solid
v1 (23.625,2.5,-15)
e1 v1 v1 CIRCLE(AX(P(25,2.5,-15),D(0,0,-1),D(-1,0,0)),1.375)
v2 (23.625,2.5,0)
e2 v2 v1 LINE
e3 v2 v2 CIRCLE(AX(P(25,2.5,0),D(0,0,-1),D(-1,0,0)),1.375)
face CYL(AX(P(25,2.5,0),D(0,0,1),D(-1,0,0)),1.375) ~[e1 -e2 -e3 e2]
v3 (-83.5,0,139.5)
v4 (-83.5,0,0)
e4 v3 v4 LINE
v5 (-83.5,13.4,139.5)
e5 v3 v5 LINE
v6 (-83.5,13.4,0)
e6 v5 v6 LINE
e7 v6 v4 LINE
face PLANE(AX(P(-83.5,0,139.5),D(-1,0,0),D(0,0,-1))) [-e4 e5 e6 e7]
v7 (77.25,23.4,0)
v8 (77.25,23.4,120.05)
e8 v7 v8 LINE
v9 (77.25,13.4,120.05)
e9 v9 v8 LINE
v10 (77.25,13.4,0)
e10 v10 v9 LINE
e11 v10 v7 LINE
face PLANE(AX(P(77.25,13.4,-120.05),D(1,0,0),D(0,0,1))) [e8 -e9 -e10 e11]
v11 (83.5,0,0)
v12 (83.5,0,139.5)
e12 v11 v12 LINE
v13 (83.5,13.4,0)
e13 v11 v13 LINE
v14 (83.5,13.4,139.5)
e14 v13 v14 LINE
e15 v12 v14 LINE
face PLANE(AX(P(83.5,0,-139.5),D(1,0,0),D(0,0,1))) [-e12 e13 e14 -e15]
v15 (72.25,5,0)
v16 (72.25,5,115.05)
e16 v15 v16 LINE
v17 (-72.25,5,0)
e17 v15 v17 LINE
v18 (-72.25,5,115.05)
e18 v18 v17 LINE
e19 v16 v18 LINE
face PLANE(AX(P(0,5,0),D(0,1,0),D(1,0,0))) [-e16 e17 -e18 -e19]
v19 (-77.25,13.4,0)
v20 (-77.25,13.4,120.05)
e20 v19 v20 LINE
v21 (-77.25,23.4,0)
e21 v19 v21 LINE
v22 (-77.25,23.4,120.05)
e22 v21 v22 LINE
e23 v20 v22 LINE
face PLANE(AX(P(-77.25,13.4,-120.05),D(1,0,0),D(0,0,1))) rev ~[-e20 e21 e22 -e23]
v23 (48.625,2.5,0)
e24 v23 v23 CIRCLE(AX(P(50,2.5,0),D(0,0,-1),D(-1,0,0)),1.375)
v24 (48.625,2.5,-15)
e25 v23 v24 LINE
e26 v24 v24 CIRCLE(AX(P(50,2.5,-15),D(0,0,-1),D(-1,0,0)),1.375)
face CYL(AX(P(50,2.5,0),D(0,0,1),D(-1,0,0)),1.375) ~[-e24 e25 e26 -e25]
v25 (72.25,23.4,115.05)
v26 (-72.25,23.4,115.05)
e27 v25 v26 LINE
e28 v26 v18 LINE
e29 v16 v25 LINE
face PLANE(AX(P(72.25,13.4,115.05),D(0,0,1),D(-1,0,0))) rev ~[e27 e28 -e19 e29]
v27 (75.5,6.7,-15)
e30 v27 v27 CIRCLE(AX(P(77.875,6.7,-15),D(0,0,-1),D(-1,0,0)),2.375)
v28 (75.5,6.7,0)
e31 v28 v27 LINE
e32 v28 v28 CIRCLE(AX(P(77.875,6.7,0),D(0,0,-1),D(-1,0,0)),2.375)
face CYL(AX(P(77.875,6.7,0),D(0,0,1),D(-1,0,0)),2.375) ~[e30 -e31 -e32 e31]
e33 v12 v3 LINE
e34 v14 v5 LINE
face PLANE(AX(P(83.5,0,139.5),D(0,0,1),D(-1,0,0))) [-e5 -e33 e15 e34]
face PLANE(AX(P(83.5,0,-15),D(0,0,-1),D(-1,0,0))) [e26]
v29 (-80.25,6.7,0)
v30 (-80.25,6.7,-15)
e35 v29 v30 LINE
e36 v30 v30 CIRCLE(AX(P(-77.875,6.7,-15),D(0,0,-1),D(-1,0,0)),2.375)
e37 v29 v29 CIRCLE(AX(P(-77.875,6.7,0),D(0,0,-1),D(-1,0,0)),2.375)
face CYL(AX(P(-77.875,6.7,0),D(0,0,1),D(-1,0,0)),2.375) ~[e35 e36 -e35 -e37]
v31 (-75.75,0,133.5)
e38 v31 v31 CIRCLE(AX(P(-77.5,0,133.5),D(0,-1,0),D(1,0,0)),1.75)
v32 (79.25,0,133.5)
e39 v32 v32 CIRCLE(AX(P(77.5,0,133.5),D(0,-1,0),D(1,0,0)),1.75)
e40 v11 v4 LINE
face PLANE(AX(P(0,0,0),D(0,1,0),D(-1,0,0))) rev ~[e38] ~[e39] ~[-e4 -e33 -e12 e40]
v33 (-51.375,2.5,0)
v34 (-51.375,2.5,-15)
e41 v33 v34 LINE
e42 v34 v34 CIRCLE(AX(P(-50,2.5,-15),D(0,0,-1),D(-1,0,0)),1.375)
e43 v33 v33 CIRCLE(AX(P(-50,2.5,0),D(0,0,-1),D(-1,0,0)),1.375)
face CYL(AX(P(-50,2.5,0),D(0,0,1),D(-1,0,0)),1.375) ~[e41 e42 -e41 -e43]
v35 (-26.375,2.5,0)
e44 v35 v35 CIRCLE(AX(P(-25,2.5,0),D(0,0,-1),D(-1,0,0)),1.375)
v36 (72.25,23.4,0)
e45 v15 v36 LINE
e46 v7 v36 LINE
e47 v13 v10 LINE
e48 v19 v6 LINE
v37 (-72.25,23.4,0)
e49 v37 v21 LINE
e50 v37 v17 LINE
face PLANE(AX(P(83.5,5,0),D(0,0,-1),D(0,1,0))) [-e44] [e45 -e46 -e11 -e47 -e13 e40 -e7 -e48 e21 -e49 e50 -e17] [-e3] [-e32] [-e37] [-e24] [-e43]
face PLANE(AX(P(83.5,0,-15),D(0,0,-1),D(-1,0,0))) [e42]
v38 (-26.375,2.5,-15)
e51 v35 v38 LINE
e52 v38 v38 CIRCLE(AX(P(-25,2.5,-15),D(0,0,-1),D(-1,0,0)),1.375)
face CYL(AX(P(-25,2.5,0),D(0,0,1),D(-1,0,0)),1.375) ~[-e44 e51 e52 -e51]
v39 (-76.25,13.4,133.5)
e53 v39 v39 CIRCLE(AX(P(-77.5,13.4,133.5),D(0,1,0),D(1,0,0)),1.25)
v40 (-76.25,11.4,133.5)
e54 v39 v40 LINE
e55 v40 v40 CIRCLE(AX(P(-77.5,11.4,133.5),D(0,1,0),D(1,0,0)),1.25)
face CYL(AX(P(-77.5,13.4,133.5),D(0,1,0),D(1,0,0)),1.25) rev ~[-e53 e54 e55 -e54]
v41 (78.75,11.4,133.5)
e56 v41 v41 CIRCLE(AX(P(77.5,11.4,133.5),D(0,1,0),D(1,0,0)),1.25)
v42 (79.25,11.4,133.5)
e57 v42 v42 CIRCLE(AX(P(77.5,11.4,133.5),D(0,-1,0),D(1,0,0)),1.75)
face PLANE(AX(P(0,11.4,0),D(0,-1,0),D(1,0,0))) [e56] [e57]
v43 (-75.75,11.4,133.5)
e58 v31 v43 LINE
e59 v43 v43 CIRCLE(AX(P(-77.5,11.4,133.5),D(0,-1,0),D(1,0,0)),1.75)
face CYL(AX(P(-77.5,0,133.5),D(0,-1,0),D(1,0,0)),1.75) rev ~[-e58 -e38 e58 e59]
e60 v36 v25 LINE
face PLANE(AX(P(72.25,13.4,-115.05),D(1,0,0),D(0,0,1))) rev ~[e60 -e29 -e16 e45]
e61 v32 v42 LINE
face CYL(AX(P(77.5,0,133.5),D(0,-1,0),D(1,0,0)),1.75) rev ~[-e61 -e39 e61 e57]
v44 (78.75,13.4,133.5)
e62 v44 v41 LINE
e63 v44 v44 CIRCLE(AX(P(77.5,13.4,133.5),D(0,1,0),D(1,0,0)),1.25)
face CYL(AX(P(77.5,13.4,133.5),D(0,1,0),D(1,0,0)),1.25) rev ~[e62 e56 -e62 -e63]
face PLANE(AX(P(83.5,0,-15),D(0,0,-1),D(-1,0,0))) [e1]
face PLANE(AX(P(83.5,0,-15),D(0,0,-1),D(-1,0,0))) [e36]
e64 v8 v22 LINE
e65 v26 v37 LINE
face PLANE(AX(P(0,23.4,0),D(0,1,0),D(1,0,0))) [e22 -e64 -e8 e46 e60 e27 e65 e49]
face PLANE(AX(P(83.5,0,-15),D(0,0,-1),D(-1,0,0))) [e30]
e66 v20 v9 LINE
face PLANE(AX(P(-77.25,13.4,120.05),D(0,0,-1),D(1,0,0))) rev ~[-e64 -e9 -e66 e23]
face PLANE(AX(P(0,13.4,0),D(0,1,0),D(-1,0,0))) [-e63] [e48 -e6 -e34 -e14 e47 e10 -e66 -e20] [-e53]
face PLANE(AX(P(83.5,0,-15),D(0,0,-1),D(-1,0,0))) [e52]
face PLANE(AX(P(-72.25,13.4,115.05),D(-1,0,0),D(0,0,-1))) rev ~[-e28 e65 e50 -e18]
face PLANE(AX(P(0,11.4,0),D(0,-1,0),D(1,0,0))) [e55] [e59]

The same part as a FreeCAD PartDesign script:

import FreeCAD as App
import Part
import Sketcher
Q = App.Units.Quantity


def add_polygon(sketch, points):
    """Adds a closed chain of lines whose ends are joined by coincident constraints."""
    first, n = sketch.GeometryCount, len(points)
    for a, b in zip(points, points[1:] + points[:1]):
        sketch.addGeometry(Part.LineSegment(App.Vector(*a, 0), App.Vector(*b, 0)), False)
    for i in range(n):
        sketch.addConstraint(Sketcher.Constraint("Coincident", first + i, 2, first + (i + 1) % n, 1))

doc = App.newDocument("Part")
body = doc.addObject("PartDesign::Body", "Body")

# Sketch on XZ plane
sketch1 = body.newObject("Sketcher::SketchObject", "Sketch")
sketch1.AttachmentSupport = (doc.getObject("XZ_Plane"), [""])
sketch1.MapMode = "FlatFace"
add_polygon(sketch1, [(-84, 140), (84, 140), (84, -140), (-84, -140)])  # lines 0-3
sketch1.addConstraint([
    Sketcher.Constraint("Horizontal", 0),
    Sketcher.Constraint("Vertical", 1),
    Sketcher.Constraint("Horizontal", 2),
    Sketcher.Constraint("Vertical", 3),
    Sketcher.Constraint("Symmetric", 0, 2, 2, 2, -1, 1),
    Sketcher.Constraint("DistanceX", 0, 1, 0, 2, Q("167 mm")),
    Sketcher.Constraint("DistanceY", 1, 2, 1, 1, Q("279 mm")),
])
pad1 = body.newObject("PartDesign::Pad", "Pad")
pad1.Profile = sketch1
pad1.Length = 13.4
pad1.Reversed = True

# Sketch on XZ plane
sketch2 = body.newObject("Sketcher::SketchObject", "Sketch001")
sketch2.AttachmentSupport = (doc.getObject("XZ_Plane"), [""])
sketch2.MapMode = "FlatFace"
sketch2.AttachmentOffset = App.Placement(App.Vector(0, 0, -13.4), App.Rotation())
add_polygon(sketch2, [(-72, 115), (72, 115), (72, -115), (-72, -115)])  # lines 0-3
sketch2.addConstraint([
    Sketcher.Constraint("Horizontal", 0),
    Sketcher.Constraint("Vertical", 1),
    Sketcher.Constraint("Horizontal", 2),
    Sketcher.Constraint("Vertical", 3),
    Sketcher.Constraint("Symmetric", 0, 2, 2, 2, -1, 1),
    Sketcher.Constraint("DistanceX", 0, 1, 0, 2, Q("144.5 mm")),
    Sketcher.Constraint("DistanceY", 1, 2, 1, 1, Q("230.1 mm")),
])
pocket1 = body.newObject("PartDesign::Pocket", "Pocket")
pocket1.Profile = sketch2
pocket1.Length = 8.4
pocket1.Reversed = True

# Sketch on XZ plane
sketch3 = body.newObject("Sketcher::SketchObject", "Sketch002")
sketch3.AttachmentSupport = (doc.getObject("XZ_Plane"), [""])
sketch3.MapMode = "FlatFace"
sketch3.AttachmentOffset = App.Placement(App.Vector(0, 0, -13.4), App.Rotation())
sketch3.addGeometry([
    Part.Circle(App.Vector(-77.5, 133.5, 0), App.Vector(0, 0, 1), 1.2),
    Part.Circle(App.Vector(-77.5, -133.5, 0), App.Vector(0, 0, 1), 1.2),
    Part.Circle(App.Vector(77.5, -133.5, 0), App.Vector(0, 0, 1), 1.2),
    Part.Circle(App.Vector(77.5, 133.5, 0), App.Vector(0, 0, 1), 1.2),
], False)
sketch3.addConstraint([
    Sketcher.Constraint("Equal", 0, 1),
    Sketcher.Constraint("Equal", 1, 2),
    Sketcher.Constraint("Equal", 2, 3),
    Sketcher.Constraint("Symmetric", 0, 3, 2, 3, -1, 1),
    Sketcher.Constraint("Symmetric", 1, 3, 3, 3, -1, 1),
    Sketcher.Constraint("Symmetric", 1, 3, 2, 3, -2),
    Sketcher.Constraint("Diameter", 0, Q("2.5 mm")),
    Sketcher.Constraint("DistanceY", 1, 3, 0, 3, Q("267 mm")),
    Sketcher.Constraint("DistanceX", 1, 3, 2, 3, Q("155 mm")),
])
pocket2 = body.newObject("PartDesign::Pocket", "Pocket001")
pocket2.Profile = sketch3
pocket2.Type = "ThroughAll"
pocket2.Reversed = True

# Sketch on XZ plane
sketch4 = body.newObject("Sketcher::SketchObject", "Sketch003")
sketch4.AttachmentSupport = (doc.getObject("XZ_Plane"), [""])
sketch4.MapMode = "FlatFace"
sketch4.AttachmentOffset = App.Placement(App.Vector(0, 0, -13.4), App.Rotation())
add_polygon(sketch4, [(-77, 120), (77, 120), (77, -120), (-77, -120)])  # lines 0-3
add_polygon(sketch4, [(-72, 115), (-72, -115), (72, -115), (72, 115)])  # lines 4-7
sketch4.addConstraint([
    Sketcher.Constraint("Horizontal", 0),
    Sketcher.Constraint("Vertical", 1),
    Sketcher.Constraint("Horizontal", 2),
    Sketcher.Constraint("Vertical", 3),
    Sketcher.Constraint("Vertical", 4),
    Sketcher.Constraint("Horizontal", 5),
    Sketcher.Constraint("Vertical", 6),
    Sketcher.Constraint("Horizontal", 7),
    Sketcher.Constraint("Symmetric", 0, 2, 2, 2, -1, 1),
    Sketcher.Constraint("Symmetric", 4, 2, 6, 2, -1, 1),
    Sketcher.Constraint("DistanceY", 1, 2, 1, 1, Q("240.1 mm")),
    Sketcher.Constraint("DistanceX", 2, 2, 4, 2, Q("5 mm")),
    Sketcher.Constraint("DistanceY", 2, 2, 4, 2, Q("5 mm")),
    Sketcher.Constraint("DistanceX", 0, 1, 0, 2, Q("154.5 mm")),
])
pad2 = body.newObject("PartDesign::Pad", "Pad001")
pad2.Profile = sketch4
pad2.Length = 10
pad2.Reversed = True

# Sketch on XZ plane
sketch5 = body.newObject("Sketcher::SketchObject", "Sketch004")
sketch5.AttachmentSupport = (doc.getObject("XZ_Plane"), [""])
sketch5.MapMode = "FlatFace"
sketch5.addGeometry([
    Part.Circle(App.Vector(-77.5, -133.5, 0), App.Vector(0, 0, 1), 1.8),  # 0
    Part.Circle(App.Vector(-77.5, 133.5, 0), App.Vector(0, 0, 1), 1.8),  # 1
    Part.Circle(App.Vector(77.5, 133.5, 0), App.Vector(0, 0, 1), 1.8),  # 2
    Part.Circle(App.Vector(77.5, -133.5, 0), App.Vector(0, 0, 1), 1.8),  # 3
    Part.Circle(App.Vector(77.5, -133.5, 0), App.Vector(0, 0, 1), 1.2),  # 4
], False)
sketch5.addConstraint([
    Sketcher.Constraint("Coincident", 4, 3, 3, 3),
    Sketcher.Constraint("Equal", 0, 1),
    Sketcher.Constraint("Equal", 1, 2),
    Sketcher.Constraint("Equal", 2, 3),
    Sketcher.Constraint("Symmetric", 0, 3, 2, 3, -1, 1),
    Sketcher.Constraint("Symmetric", 1, 3, 3, 3, -1, 1),
    Sketcher.Constraint("Symmetric", 1, 3, 2, 3, -2),
    Sketcher.Constraint("Diameter", 0, Q("3.5 mm")),
    Sketcher.Constraint("Diameter", 4, Q("2.5 mm")),
    Sketcher.Constraint("DistanceY", 0, 3, 1, 3, Q("267 mm")),
    Sketcher.Constraint("DistanceX", 1, 3, 2, 3, Q("155 mm")),
])
pocket3 = body.newObject("PartDesign::Pocket", "Pocket002")
pocket3.Profile = sketch5
pocket3.Length = 11.4

# Sketch on YZ plane
sketch6 = body.newObject("Sketcher::SketchObject", "Sketch005")
sketch6.AttachmentSupport = (doc.getObject("YZ_Plane"), [""])
sketch6.MapMode = "FlatFace"
sketch6.AttachmentOffset = App.Placement(App.Vector(0, 0, 83.5), App.Rotation())
add_polygon(sketch6, [(0, 0), (0, -140), (23, -140), (23, 0)])  # lines 0-3
sketch6.addConstraint([
    Sketcher.Constraint("Vertical", 0),
    Sketcher.Constraint("Horizontal", 1),
    Sketcher.Constraint("Vertical", 2),
    Sketcher.Constraint("Horizontal", 3),
    Sketcher.Constraint("Coincident", 3, 2, -1, 1),
    Sketcher.Constraint("DistanceX", 1, 1, 1, 2, Q("23.4 mm")),
    Sketcher.Constraint("DistanceY", 0, 2, 0, 1, Q("139.5 mm")),
])
pocket4 = body.newObject("PartDesign::Pocket", "Pocket003")
pocket4.Profile = sketch6
pocket4.Length = 167.1625

# Sketch on XY plane
sketch7 = body.newObject("Sketcher::SketchObject", "Sketch006")
sketch7.AttachmentSupport = (doc.getObject("XY_Plane"), [""])
sketch7.MapMode = "FlatFace"
sketch7.addGeometry([
    Part.Circle(App.Vector(77.9, 6.7, 0), App.Vector(0, 0, 1), 2.4),  # 0
    Part.Circle(App.Vector(-77.9, 6.7, 0), App.Vector(0, 0, 1), 2.4),  # 1
    Part.Circle(App.Vector(25, 2.5, 0), App.Vector(0, 0, 1), 1.4),  # 2
    Part.Circle(App.Vector(50, 2.5, 0), App.Vector(0, 0, 1), 1.4),  # 3
    Part.Circle(App.Vector(-25, 2.5, 0), App.Vector(0, 0, 1), 1.4),  # 4
    Part.Circle(App.Vector(-50, 2.5, 0), App.Vector(0, 0, 1), 1.4),  # 5
], False)
sketch7.addConstraint([
    Sketcher.Constraint("Equal", 0, 1),
    Sketcher.Constraint("Equal", 2, 3),
    Sketcher.Constraint("Equal", 3, 4),
    Sketcher.Constraint("Equal", 4, 5),
    Sketcher.Constraint("Symmetric", 0, 3, 1, 3, -2),
    Sketcher.Constraint("Symmetric", 2, 3, 4, 3, -2),
    Sketcher.Constraint("Symmetric", 3, 3, 5, 3, -2),
    Sketcher.Constraint("Horizontal", 2, 3, 3, 3),
    Sketcher.Constraint("Diameter", 0, Q("4.75 mm")),
    Sketcher.Constraint("Diameter", 2, Q("2.75 mm")),
    Sketcher.Constraint("DistanceX", -1, 1, 2, 3, Q("25 mm")),
    Sketcher.Constraint("DistanceX", -1, 1, 3, 3, Q("50 mm")),
    Sketcher.Constraint("DistanceY", -1, 1, 0, 3, Q("6.7 mm")),
    Sketcher.Constraint("DistanceY", -1, 1, 2, 3, Q("2.5 mm")),
    Sketcher.Constraint("DistanceX", 1, 3, 0, 3, Q("155.75 mm")),
])
pad3 = body.newObject("PartDesign::Pad", "Pad002")
pad3.Profile = sketch7
pad3.Length = 15
pad3.Reversed = True

doc.recompute()
